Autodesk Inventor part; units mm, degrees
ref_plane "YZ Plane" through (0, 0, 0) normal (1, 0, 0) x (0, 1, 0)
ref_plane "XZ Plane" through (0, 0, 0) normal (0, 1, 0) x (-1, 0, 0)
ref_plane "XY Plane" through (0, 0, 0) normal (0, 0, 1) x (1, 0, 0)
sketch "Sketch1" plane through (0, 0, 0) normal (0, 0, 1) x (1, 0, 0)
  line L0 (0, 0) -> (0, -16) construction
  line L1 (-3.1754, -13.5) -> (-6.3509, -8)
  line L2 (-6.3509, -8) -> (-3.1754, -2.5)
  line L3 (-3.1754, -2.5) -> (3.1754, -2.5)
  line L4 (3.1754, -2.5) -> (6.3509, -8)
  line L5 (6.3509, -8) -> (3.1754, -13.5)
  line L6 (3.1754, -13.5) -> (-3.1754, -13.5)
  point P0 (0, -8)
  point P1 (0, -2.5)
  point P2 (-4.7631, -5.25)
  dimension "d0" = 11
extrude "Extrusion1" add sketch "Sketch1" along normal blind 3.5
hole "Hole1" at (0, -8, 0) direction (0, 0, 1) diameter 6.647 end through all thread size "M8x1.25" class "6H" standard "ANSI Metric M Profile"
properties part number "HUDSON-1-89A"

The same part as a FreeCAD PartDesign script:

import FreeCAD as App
import Part
import Sketcher
from FreeCAD import Vector
Q = App.Units.Quantity


def add_polygon(sketch, points):
    """Adds a closed chain of lines whose ends are joined by coincident constraints."""
    first, n = sketch.GeometryCount, len(points)
    for a, b in zip(points, points[1:] + points[:1]):
        sketch.addGeometry(Part.LineSegment(App.Vector(*a, 0), App.Vector(*b, 0)), False)
    for i in range(n):
        sketch.addConstraint(Sketcher.Constraint("Coincident", first + i, 2, first + (i + 1) % n, 1))

doc = App.newDocument("Part")
body = doc.addObject("PartDesign::Body", "Body")

sketch1 = body.newObject("Sketcher::SketchObject", "Sketch")
sketch1.AttachmentSupport = (doc.getObject("XY_Plane"), [""])
sketch1.MapMode = "FlatFace"
add_polygon(sketch1, [(-6, -8), (-3, -14), (3, -14), (6, -8), (3, -2), (-3, -2)])
sketch1.addConstraint(Sketcher.Constraint("Horizontal", 1))
sketch1.addConstraint(Sketcher.Constraint("Horizontal", 4))
sketch1.addConstraint(Sketcher.Constraint("Symmetric", 2, 2, 5, 2, -2))
sketch1.addConstraint(Sketcher.Constraint("Parallel", 0, 3))
sketch1.addConstraint(Sketcher.Constraint("Parallel", 2, 5))
sketch1.addConstraint(Sketcher.Constraint("Vertical", 1, 2, 3, 2))
sketch1.addConstraint(Sketcher.Constraint("Vertical", 0, 2, 4, 2))
sketch1.addConstraint(Sketcher.Constraint("DistanceY", 1, 2, 3, 2, Q("11 mm")))
sketch1.addConstraint(Sketcher.Constraint("Angle", 0, Q("-59.9994 deg")))
sketch1.addConstraint(Sketcher.Constraint("DistanceY", 2, 2, -1, 1, Q("8 mm")))
sketch1.addConstraint(Sketcher.Constraint("DistanceX", 1, 1, 1, 2, Q("6.3508 mm")))
pad1 = body.newObject("PartDesign::Pad", "Pad")
pad1.Profile = sketch1
pad1.Length = 3.5

sketch2 = body.newObject("Sketcher::SketchObject", "Sketch001")
sketch2.AttachmentSupport = (doc.getObject("XY_Plane"), [""])
sketch2.MapMode = "FlatFace"
sketch2.addGeometry(Part.Circle(Vector(0, -8, 0), Vector(0, 0, 1), 3.3), False)
sketch2.addConstraint(Sketcher.Constraint("PointOnObject", 0, 3, -2))
sketch2.addConstraint(Sketcher.Constraint("Diameter", 0, Q("6.647 mm")))
sketch2.addConstraint(Sketcher.Constraint("DistanceY", 0, 3, -1, 1, Q("8 mm")))
doc.recompute()
hole = body.newObject("PartDesign::Hole", "Hole")
hole.Profile = sketch2
hole.ThreadType = "None"
hole.Diameter = 6.647
hole.DepthType = "ThroughAll"
hole.Reversed = True

doc.recompute()
